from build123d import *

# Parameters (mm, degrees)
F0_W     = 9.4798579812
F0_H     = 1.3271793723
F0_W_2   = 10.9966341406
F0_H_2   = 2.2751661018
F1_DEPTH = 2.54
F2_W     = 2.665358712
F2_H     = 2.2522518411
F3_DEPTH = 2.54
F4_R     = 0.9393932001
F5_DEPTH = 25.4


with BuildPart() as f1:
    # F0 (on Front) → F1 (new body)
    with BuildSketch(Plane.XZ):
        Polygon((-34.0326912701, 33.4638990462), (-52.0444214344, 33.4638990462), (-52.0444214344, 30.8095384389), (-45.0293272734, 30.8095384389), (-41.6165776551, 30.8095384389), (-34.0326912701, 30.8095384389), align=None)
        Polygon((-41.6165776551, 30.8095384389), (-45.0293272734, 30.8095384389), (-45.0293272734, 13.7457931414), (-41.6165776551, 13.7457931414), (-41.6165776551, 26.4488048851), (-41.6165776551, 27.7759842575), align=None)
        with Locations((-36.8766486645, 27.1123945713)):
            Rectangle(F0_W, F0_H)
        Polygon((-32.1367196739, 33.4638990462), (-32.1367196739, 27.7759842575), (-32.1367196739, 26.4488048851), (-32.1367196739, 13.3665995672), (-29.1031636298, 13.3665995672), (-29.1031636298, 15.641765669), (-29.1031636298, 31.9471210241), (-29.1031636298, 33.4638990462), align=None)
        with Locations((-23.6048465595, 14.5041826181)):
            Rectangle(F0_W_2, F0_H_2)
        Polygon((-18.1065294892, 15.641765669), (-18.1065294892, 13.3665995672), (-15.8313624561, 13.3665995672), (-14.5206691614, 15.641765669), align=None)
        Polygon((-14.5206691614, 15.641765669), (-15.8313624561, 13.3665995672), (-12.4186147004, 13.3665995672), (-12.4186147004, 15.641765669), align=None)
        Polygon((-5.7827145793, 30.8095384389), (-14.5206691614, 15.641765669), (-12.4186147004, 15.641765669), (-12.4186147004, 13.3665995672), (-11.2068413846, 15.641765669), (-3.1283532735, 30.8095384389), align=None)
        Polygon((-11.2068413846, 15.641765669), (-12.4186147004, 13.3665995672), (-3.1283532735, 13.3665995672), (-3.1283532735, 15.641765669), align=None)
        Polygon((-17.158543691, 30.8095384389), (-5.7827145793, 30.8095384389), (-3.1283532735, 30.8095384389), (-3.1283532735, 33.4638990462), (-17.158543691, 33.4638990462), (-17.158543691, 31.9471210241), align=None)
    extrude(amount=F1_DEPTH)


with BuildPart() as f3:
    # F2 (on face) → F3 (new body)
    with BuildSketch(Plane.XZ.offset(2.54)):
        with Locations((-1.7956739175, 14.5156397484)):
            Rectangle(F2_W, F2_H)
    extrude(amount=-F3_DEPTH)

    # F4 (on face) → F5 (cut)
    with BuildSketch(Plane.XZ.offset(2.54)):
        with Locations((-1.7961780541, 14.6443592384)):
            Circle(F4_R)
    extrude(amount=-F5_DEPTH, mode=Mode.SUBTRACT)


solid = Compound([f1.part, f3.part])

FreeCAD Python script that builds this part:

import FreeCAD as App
import Part
import Sketcher

V = App.Vector
Q = App.Units.Quantity

doc = App.newDocument("Part")
body = doc.addObject("PartDesign::Body", "Body")

# Sketch on XZ plane
sketch1 = body.newObject("Sketcher::SketchObject", "Sketch")
sketch1.AttachmentSupport = (doc.getObject("XZ_Plane"), [""])
sketch1.MapMode = "FlatFace"
sketch1.addGeometry(Part.LineSegment(V(-34.032691, 33.463899, 0), V(-52.044421, 33.463899, 0)), False)
sketch1.addGeometry(Part.LineSegment(V(-52.044421, 33.463899, 0), V(-52.044421, 30.809538, 0)), False)
sketch1.addGeometry(Part.LineSegment(V(-52.044421, 30.809538, 0), V(-45.029327, 30.809538, 0)), False)
sketch1.addGeometry(Part.LineSegment(V(-45.029327, 30.809538, 0), V(-45.029327, 13.745793, 0)), False)
sketch1.addGeometry(Part.LineSegment(V(-45.029327, 13.745793, 0), V(-41.616578, 13.745793, 0)), False)
sketch1.addGeometry(Part.LineSegment(V(-41.616578, 13.745793, 0), V(-41.616578, 26.448805, 0)), False)
sketch1.addGeometry(Part.LineSegment(V(-41.616578, 26.448805, 0), V(-32.13672, 26.448805, 0)), False)
sketch1.addGeometry(Part.LineSegment(V(-32.13672, 26.448805, 0), V(-32.13672, 13.3666, 0)), False)
sketch1.addGeometry(Part.LineSegment(V(-32.13672, 13.3666, 0), V(-3.128353, 13.3666, 0)), False)
sketch1.addGeometry(Part.LineSegment(V(-3.128353, 13.3666, 0), V(-3.128353, 15.641766, 0)), False)
sketch1.addGeometry(Part.LineSegment(V(-3.128353, 15.641766, 0), V(-11.206841, 15.641766, 0)), False)
sketch1.addGeometry(Part.LineSegment(V(-11.206841, 15.641766, 0), V(-3.128353, 30.809538, 0)), False)
sketch1.addGeometry(Part.LineSegment(V(-3.128353, 30.809538, 0), V(-3.128353, 33.463899, 0)), False)
sketch1.addGeometry(Part.LineSegment(V(-3.128353, 33.463899, 0), V(-17.158544, 33.463899, 0)), False)
sketch1.addGeometry(Part.LineSegment(V(-17.158544, 33.463899, 0), V(-17.158544, 30.809538, 0)), False)
sketch1.addGeometry(Part.LineSegment(V(-17.158544, 30.809538, 0), V(-5.782715, 30.809538, 0)), False)
sketch1.addGeometry(Part.LineSegment(V(-5.782715, 30.809538, 0), V(-14.520669, 15.641766, 0)), False)
sketch1.addGeometry(Part.LineSegment(V(-14.520669, 15.641766, 0), V(-29.103164, 15.641766, 0)), False)
sketch1.addGeometry(Part.LineSegment(V(-29.103164, 15.641766, 0), V(-29.103164, 33.463899, 0)), False)
sketch1.addGeometry(Part.LineSegment(V(-29.103164, 33.463899, 0), V(-32.13672, 33.463899, 0)), False)
sketch1.addGeometry(Part.LineSegment(V(-32.13672, 33.463899, 0), V(-32.13672, 27.775984, 0)), False)
sketch1.addGeometry(Part.LineSegment(V(-32.13672, 27.775984, 0), V(-41.616578, 27.775984, 0)), False)
sketch1.addGeometry(Part.LineSegment(V(-41.616578, 27.775984, 0), V(-41.616578, 30.809538, 0)), False)
sketch1.addGeometry(Part.LineSegment(V(-41.616578, 30.809538, 0), V(-34.032691, 30.809538, 0)), False)
sketch1.addGeometry(Part.LineSegment(V(-34.032691, 30.809538, 0), V(-34.032691, 33.463899, 0)), False)
sketch1.addConstraint(Sketcher.Constraint("Coincident", 0, 2, 1, 1))
sketch1.addConstraint(Sketcher.Constraint("Coincident", 1, 2, 2, 1))
sketch1.addConstraint(Sketcher.Constraint("Coincident", 2, 2, 3, 1))
sketch1.addConstraint(Sketcher.Constraint("Coincident", 3, 2, 4, 1))
sketch1.addConstraint(Sketcher.Constraint("Coincident", 4, 2, 5, 1))
sketch1.addConstraint(Sketcher.Constraint("Coincident", 5, 2, 6, 1))
sketch1.addConstraint(Sketcher.Constraint("Coincident", 6, 2, 7, 1))
sketch1.addConstraint(Sketcher.Constraint("Coincident", 7, 2, 8, 1))
sketch1.addConstraint(Sketcher.Constraint("Coincident", 8, 2, 9, 1))
sketch1.addConstraint(Sketcher.Constraint("Coincident", 9, 2, 10, 1))
sketch1.addConstraint(Sketcher.Constraint("Coincident", 10, 2, 11, 1))
sketch1.addConstraint(Sketcher.Constraint("Coincident", 11, 2, 12, 1))
sketch1.addConstraint(Sketcher.Constraint("Coincident", 12, 2, 13, 1))
sketch1.addConstraint(Sketcher.Constraint("Coincident", 13, 2, 14, 1))
sketch1.addConstraint(Sketcher.Constraint("Coincident", 14, 2, 15, 1))
sketch1.addConstraint(Sketcher.Constraint("Coincident", 15, 2, 16, 1))
sketch1.addConstraint(Sketcher.Constraint("Coincident", 16, 2, 17, 1))
sketch1.addConstraint(Sketcher.Constraint("Coincident", 17, 2, 18, 1))
sketch1.addConstraint(Sketcher.Constraint("Coincident", 18, 2, 19, 1))
sketch1.addConstraint(Sketcher.Constraint("Coincident", 19, 2, 20, 1))
sketch1.addConstraint(Sketcher.Constraint("Coincident", 20, 2, 21, 1))
sketch1.addConstraint(Sketcher.Constraint("Coincident", 21, 2, 22, 1))
sketch1.addConstraint(Sketcher.Constraint("Coincident", 22, 2, 23, 1))
sketch1.addConstraint(Sketcher.Constraint("Coincident", 23, 2, 24, 1))
sketch1.addConstraint(Sketcher.Constraint("Coincident", 24, 2, 0, 1))
sketch1.addConstraint(Sketcher.Constraint("Horizontal", 0))
sketch1.addConstraint(Sketcher.Constraint("Vertical", 1))
sketch1.addConstraint(Sketcher.Constraint("Horizontal", 2))
sketch1.addConstraint(Sketcher.Constraint("Vertical", 3))
sketch1.addConstraint(Sketcher.Constraint("Horizontal", 4))
sketch1.addConstraint(Sketcher.Constraint("Vertical", 5))
sketch1.addConstraint(Sketcher.Constraint("Horizontal", 6))
sketch1.addConstraint(Sketcher.Constraint("Vertical", 7))
sketch1.addConstraint(Sketcher.Constraint("Horizontal", 8))
sketch1.addConstraint(Sketcher.Constraint("Vertical", 9))
sketch1.addConstraint(Sketcher.Constraint("Horizontal", 10))
sketch1.addConstraint(Sketcher.Constraint("Vertical", 12))
sketch1.addConstraint(Sketcher.Constraint("Horizontal", 13))
sketch1.addConstraint(Sketcher.Constraint("Vertical", 14))
sketch1.addConstraint(Sketcher.Constraint("Horizontal", 15))
sketch1.addConstraint(Sketcher.Constraint("Horizontal", 17))
sketch1.addConstraint(Sketcher.Constraint("Vertical", 18))
sketch1.addConstraint(Sketcher.Constraint("Horizontal", 19))
sketch1.addConstraint(Sketcher.Constraint("Vertical", 20))
sketch1.addConstraint(Sketcher.Constraint("Horizontal", 21))
sketch1.addConstraint(Sketcher.Constraint("Vertical", 22))
sketch1.addConstraint(Sketcher.Constraint("Horizontal", 23))
sketch1.addConstraint(Sketcher.Constraint("Vertical", 24))
sketch1.addConstraint(Sketcher.Constraint("Horizontal", 2, 2, 11, 2))
sketch1.addConstraint(Sketcher.Constraint("Horizontal", 0, 2, 12, 2))
sketch1.addConstraint(Sketcher.Constraint("Horizontal", 11, 2, 14, 2))
sketch1.addConstraint(Sketcher.Constraint("Horizontal", 10, 2, 16, 2))
sketch1.addConstraint(Sketcher.Constraint("Horizontal", 13, 2, 18, 2))
sketch1.addConstraint(Sketcher.Constraint("Horizontal", 15, 2, 22, 2))
sketch1.addConstraint(Sketcher.Constraint("Vertical", 9, 2, 11, 2))
sketch1.addConstraint(Sketcher.Constraint("Vertical", 7, 2, 19, 2))
sketch1.addConstraint(Sketcher.Constraint("Vertical", 5, 2, 21, 2))
sketch1.addConstraint(Sketcher.Constraint("Equal", 19, 22))
sketch1.addConstraint(Sketcher.Constraint("DistanceX", 0, 2, 0, 1, 18.01173))
sketch1.addConstraint(Sketcher.Constraint("DistanceX", 4, 1, 4, 2, 3.41275))
sketch1.addConstraint(Sketcher.Constraint("DistanceX", 10, 2, 10, 1, 8.078488))
sketch1.addConstraint(Sketcher.Constraint("DistanceX", 13, 2, 13, 1, 14.03019))
sketch1.addConstraint(Sketcher.Constraint("DistanceX", 15, 1, 15, 2, 11.375829))
sketch1.addConstraint(Sketcher.Constraint("DistanceY", 1, 2, 1, 1, 2.654361))
sketch1.addConstraint(Sketcher.Constraint("DistanceY", 5, 1, 5, 2, 12.703012))
sketch1.addConstraint(Sketcher.Constraint("DistanceY", -1, 1, 0, 2, 33.463899))
sketch1.addConstraint(Sketcher.Constraint("DistanceY", -1, 1, 7, 2, 13.3666))
sketch1.addConstraint(Sketcher.Constraint("DistanceX", 1, 2, 6, 2, 19.907702))
sketch1.addConstraint(Sketcher.Constraint("Distance", 16, 17.504662))
sketch1.addConstraint(Sketcher.Constraint("DistanceX", 2, 1, 2, 2, 7.015094))
sketch1.addConstraint(Sketcher.Constraint("DistanceX", 8, 1, 8, 2, 29.008366))
sketch1.addConstraint(Sketcher.Constraint("DistanceX", 17, 2, 17, 1, 14.582494))
sketch1.addConstraint(Sketcher.Constraint("DistanceX", 19, 2, 19, 1, 3.033556))
sketch1.addConstraint(Sketcher.Constraint("DistanceY", 3, 2, 3, 1, 17.063745))
sketch1.addConstraint(Sketcher.Constraint("DistanceX", 0, 2, -1, 1, 52.044421))
pad1 = body.newObject("PartDesign::Pad", "Pad")
pad1.Profile = sketch1
pad1.Length = Q("0.1 in")
body2 = doc.addObject("PartDesign::Body", "Body001")

# Sketch on XZ plane
sketch2 = body2.newObject("Sketcher::SketchObject", "Sketch001")
sketch2.AttachmentSupport = (doc.getObject("XZ_Plane001"), [""])
sketch2.MapMode = "FlatFace"
sketch2.AttachmentOffset = App.Placement(V(0, 0, 0.1 * 25.4), App.Rotation())
sketch2.addGeometry(Part.LineSegment(V(-3.128353, 15.641766, 0), V(-3.128353, 13.389514, 0)), False)
sketch2.addGeometry(Part.LineSegment(V(-3.128353, 13.389514, 0), V(-0.462995, 13.389514, 0)), False)
sketch2.addGeometry(Part.LineSegment(V(-0.462995, 13.389514, 0), V(-0.462995, 15.641766, 0)), False)
sketch2.addGeometry(Part.LineSegment(V(-0.462995, 15.641766, 0), V(-3.128353, 15.641766, 0)), False)
sketch2.addConstraint(Sketcher.Constraint("Coincident", 0, 2, 1, 1))
sketch2.addConstraint(Sketcher.Constraint("Coincident", 1, 2, 2, 1))
sketch2.addConstraint(Sketcher.Constraint("Coincident", 2, 2, 3, 1))
sketch2.addConstraint(Sketcher.Constraint("Coincident", 3, 2, 0, 1))
sketch2.addConstraint(Sketcher.Constraint("Vertical", 0))
sketch2.addConstraint(Sketcher.Constraint("Horizontal", 1))
sketch2.addConstraint(Sketcher.Constraint("Vertical", 2))
sketch2.addConstraint(Sketcher.Constraint("Horizontal", 3))
sketch2.addConstraint(Sketcher.Constraint("DistanceX", 1, 1, 1, 2, 2.665359))
sketch2.addConstraint(Sketcher.Constraint("DistanceY", 0, 2, 0, 1, 2.252252))
sketch2.addConstraint(Sketcher.Constraint("DistanceX", 0, 2, -1, 1, 3.128353))
sketch2.addConstraint(Sketcher.Constraint("DistanceY", -1, 1, 0, 2, 13.389514))
pad2 = body2.newObject("PartDesign::Pad", "Pad001")
pad2.Profile = sketch2
pad2.Length = Q("0.1 in")
pad2.Reversed = True

# Sketch on XZ plane
sketch3 = body2.newObject("Sketcher::SketchObject", "Sketch002")
sketch3.AttachmentSupport = (doc.getObject("XZ_Plane001"), [""])
sketch3.MapMode = "FlatFace"
sketch3.AttachmentOffset = App.Placement(V(0, 0, 0.1 * 25.4), App.Rotation())
sketch3.addGeometry(Part.Circle(V(-1.796178, 14.644359, 0), V(0, 0, 1), 0.939393), False)
sketch3.addConstraint(Sketcher.Constraint("Diameter", 0, 1.878786))
sketch3.addConstraint(Sketcher.Constraint("DistanceX", 0, 3, -1, 1, 1.796178))
sketch3.addConstraint(Sketcher.Constraint("DistanceY", -1, 1, 0, 3, 14.644359))
pocket1 = body2.newObject("PartDesign::Pocket", "Pocket")
pocket1.Profile = sketch3
pocket1.Length = Q("1 in")

doc.recompute()
